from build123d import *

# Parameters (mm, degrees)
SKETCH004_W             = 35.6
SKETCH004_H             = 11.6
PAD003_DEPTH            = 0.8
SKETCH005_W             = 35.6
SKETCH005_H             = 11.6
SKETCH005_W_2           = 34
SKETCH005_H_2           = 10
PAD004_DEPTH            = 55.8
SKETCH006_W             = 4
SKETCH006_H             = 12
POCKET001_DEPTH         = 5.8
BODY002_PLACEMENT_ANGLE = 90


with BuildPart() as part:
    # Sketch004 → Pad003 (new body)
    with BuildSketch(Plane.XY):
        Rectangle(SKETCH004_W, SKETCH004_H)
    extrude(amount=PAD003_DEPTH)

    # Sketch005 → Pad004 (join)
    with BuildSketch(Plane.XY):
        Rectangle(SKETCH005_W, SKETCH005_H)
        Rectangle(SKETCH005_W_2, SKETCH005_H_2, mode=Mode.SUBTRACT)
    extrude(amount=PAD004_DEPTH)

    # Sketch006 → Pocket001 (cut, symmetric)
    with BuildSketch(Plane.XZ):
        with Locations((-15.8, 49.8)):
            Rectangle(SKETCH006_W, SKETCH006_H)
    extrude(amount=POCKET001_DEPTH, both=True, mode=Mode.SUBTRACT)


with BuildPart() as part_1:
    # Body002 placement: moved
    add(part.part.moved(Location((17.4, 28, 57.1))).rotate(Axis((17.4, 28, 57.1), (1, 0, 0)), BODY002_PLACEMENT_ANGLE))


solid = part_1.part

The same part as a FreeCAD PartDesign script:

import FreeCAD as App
import Part
import Sketcher

V = App.Vector
Q = App.Units.Quantity


def add_polygon(sketch, points):
    """Adds a closed chain of lines whose ends are joined by coincident constraints."""
    first, n = sketch.GeometryCount, len(points)
    for a, b in zip(points, points[1:] + points[:1]):
        sketch.addGeometry(Part.LineSegment(App.Vector(*a, 0), App.Vector(*b, 0)), False)
    for i in range(n):
        sketch.addConstraint(Sketcher.Constraint("Coincident", first + i, 2, first + (i + 1) % n, 1))

doc = App.newDocument("Part")
body = doc.addObject("PartDesign::Body", "Body")

# Sketch on XY plane
sketch1 = body.newObject("Sketcher::SketchObject", "Sketch")
sketch1.AttachmentSupport = (doc.getObject("XY_Plane"), [""])
sketch1.MapMode = "FlatFace"
add_polygon(sketch1, [(-18, 6), (-18, -6), (18, -6), (18, 6)])  # lines 0-3
sketch1.addConstraint([
    Sketcher.Constraint("Vertical", 0),
    Sketcher.Constraint("Horizontal", 1),
    Sketcher.Constraint("Vertical", 2),
    Sketcher.Constraint("Horizontal", 3),
    Sketcher.Constraint("Symmetric", 0, 2, 2, 2, -1, 1),
    Sketcher.Constraint("DistanceX", 1, 1, 1, 2, Q("35.6 mm")),
    Sketcher.Constraint("DistanceY", 0, 2, 0, 1, Q("11.6 mm")),
])
pad1 = body.newObject("PartDesign::Pad", "Pad")
pad1.Profile = sketch1
pad1.Length = 0.8

# Sketch on XY plane
sketch2 = body.newObject("Sketcher::SketchObject", "Sketch001")
sketch2.AttachmentSupport = (doc.getObject("XY_Plane"), [""])
sketch2.MapMode = "FlatFace"
add_polygon(sketch2, [(-18, 6), (-18, -6), (18, -6), (18, 6)])  # lines 0-3
add_polygon(sketch2, [(17, -5), (-17, -5), (-17, 5), (17, 5)])  # lines 4-7
sketch2.addConstraint([
    Sketcher.Constraint("Vertical", 0),
    Sketcher.Constraint("Horizontal", 1),
    Sketcher.Constraint("Vertical", 2),
    Sketcher.Constraint("Horizontal", 3),
    Sketcher.Constraint("Horizontal", 4),
    Sketcher.Constraint("Vertical", 5),
    Sketcher.Constraint("Horizontal", 6),
    Sketcher.Constraint("Vertical", 7),
    Sketcher.Constraint("Symmetric", 0, 2, 2, 2, -1, 1),
    Sketcher.Constraint("Symmetric", 4, 2, 6, 2, -1, 1),
    Sketcher.Constraint("DistanceX", 4, 2, 4, 1, Q("34 mm")),
    Sketcher.Constraint("DistanceY", 5, 1, 5, 2, Q("10 mm")),
    Sketcher.Constraint("DistanceX", 1, 1, 1, 2, Q("35.6 mm")),
    Sketcher.Constraint("DistanceY", 0, 2, 0, 1, Q("11.6 mm")),
])
pad2 = body.newObject("PartDesign::Pad", "Pad001")
pad2.Profile = sketch2
pad2.Length = 55.8

# Sketch on XZ plane
sketch3 = body.newObject("Sketcher::SketchObject", "Sketch002")
sketch3.AttachmentSupport = (doc.getObject("XZ_Plane"), [""])
sketch3.MapMode = "FlatFace"
add_polygon(sketch3, [(-17.8, 55.8), (-17.8, 43.8), (-13.8, 43.8), (-13.8, 55.8)])  # lines 0-3
sketch3.addConstraint([
    Sketcher.Constraint("Vertical", 0),
    Sketcher.Constraint("Horizontal", 1),
    Sketcher.Constraint("Vertical", 2),
    Sketcher.Constraint("Horizontal", 3),
    Sketcher.Constraint("DistanceX", 1, 1, 1, 2, Q("4 mm")),
    Sketcher.Constraint("DistanceY", 0, 2, 0, 1, Q("12 mm")),
    Sketcher.Constraint("DistanceX", 0, 2, -1, 1, Q("17.8 mm")),
    Sketcher.Constraint("DistanceY", -1, 1, 0, 2, Q("43.8 mm")),
])
pocket1 = body.newObject("PartDesign::Pocket", "Pocket")
pocket1.Profile = sketch3
pocket1.Length = 11.6
pocket1.Midplane = True
body2 = doc.addObject("PartDesign::Body", "Body001")
doc.recompute()

body.Placement = App.Placement(V(17.4, 28, 57.1), App.Rotation(V(1, 0, 0), 90))
boolean = body2.newObject("PartDesign::Boolean", "Boolean")
boolean.Type = "Fuse"
boolean.addObjects([body])

doc.recompute()
